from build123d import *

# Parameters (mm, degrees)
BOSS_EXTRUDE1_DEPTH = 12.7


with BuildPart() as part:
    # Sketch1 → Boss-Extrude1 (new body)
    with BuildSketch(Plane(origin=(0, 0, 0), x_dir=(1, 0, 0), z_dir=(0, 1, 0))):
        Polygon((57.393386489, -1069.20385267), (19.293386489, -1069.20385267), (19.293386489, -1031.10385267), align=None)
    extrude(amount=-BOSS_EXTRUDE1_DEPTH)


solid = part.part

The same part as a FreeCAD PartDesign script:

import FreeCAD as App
import Part
import Sketcher
from FreeCAD import Vector
Q = App.Units.Quantity

doc = App.newDocument("Part")
body = doc.addObject("PartDesign::Body", "Body")

sketch1 = doc.addObject("Sketcher::SketchObject", "Sketch")
body.addObject(sketch1)
sketch1.AttachmentSupport = (doc.XZ_Plane, [""])
sketch1.MapMode = "FlatFace"
sketch1.addGeometry([
    Part.LineSegment(Vector(19, 1069, 0), Vector(57, 1069, 0)),
    Part.LineSegment(Vector(57, 1069, 0), Vector(19, 1031, 0)),
    Part.LineSegment(Vector(19, 1031, 0), Vector(19, 1069, 0)),
], False)
sketch1.addConstraint([
    Sketcher.Constraint("Coincident", 0, 2, 1, 1),
    Sketcher.Constraint("Coincident", 1, 2, 2, 1),
    Sketcher.Constraint("Coincident", 2, 2, 0, 1),
    Sketcher.Constraint("Horizontal", 0),
    Sketcher.Constraint("Vertical", 2),
    Sketcher.Constraint("Equal", 0, 2),
    Sketcher.Constraint("DistanceX", 0, 1, 0, 2, Q("1.5 in")),
    Sketcher.Constraint("DistanceX", -1, 1, 0, 2, 57.393386),
    Sketcher.Constraint("DistanceY", -1, 1, 0, 2, 1069.203853),
])
pad1 = doc.addObject("PartDesign::Pad", "Pad")
body.addObject(pad1)
pad1.Profile = sketch1
pad1.Length = Q("0.5 in")

doc.recompute()
